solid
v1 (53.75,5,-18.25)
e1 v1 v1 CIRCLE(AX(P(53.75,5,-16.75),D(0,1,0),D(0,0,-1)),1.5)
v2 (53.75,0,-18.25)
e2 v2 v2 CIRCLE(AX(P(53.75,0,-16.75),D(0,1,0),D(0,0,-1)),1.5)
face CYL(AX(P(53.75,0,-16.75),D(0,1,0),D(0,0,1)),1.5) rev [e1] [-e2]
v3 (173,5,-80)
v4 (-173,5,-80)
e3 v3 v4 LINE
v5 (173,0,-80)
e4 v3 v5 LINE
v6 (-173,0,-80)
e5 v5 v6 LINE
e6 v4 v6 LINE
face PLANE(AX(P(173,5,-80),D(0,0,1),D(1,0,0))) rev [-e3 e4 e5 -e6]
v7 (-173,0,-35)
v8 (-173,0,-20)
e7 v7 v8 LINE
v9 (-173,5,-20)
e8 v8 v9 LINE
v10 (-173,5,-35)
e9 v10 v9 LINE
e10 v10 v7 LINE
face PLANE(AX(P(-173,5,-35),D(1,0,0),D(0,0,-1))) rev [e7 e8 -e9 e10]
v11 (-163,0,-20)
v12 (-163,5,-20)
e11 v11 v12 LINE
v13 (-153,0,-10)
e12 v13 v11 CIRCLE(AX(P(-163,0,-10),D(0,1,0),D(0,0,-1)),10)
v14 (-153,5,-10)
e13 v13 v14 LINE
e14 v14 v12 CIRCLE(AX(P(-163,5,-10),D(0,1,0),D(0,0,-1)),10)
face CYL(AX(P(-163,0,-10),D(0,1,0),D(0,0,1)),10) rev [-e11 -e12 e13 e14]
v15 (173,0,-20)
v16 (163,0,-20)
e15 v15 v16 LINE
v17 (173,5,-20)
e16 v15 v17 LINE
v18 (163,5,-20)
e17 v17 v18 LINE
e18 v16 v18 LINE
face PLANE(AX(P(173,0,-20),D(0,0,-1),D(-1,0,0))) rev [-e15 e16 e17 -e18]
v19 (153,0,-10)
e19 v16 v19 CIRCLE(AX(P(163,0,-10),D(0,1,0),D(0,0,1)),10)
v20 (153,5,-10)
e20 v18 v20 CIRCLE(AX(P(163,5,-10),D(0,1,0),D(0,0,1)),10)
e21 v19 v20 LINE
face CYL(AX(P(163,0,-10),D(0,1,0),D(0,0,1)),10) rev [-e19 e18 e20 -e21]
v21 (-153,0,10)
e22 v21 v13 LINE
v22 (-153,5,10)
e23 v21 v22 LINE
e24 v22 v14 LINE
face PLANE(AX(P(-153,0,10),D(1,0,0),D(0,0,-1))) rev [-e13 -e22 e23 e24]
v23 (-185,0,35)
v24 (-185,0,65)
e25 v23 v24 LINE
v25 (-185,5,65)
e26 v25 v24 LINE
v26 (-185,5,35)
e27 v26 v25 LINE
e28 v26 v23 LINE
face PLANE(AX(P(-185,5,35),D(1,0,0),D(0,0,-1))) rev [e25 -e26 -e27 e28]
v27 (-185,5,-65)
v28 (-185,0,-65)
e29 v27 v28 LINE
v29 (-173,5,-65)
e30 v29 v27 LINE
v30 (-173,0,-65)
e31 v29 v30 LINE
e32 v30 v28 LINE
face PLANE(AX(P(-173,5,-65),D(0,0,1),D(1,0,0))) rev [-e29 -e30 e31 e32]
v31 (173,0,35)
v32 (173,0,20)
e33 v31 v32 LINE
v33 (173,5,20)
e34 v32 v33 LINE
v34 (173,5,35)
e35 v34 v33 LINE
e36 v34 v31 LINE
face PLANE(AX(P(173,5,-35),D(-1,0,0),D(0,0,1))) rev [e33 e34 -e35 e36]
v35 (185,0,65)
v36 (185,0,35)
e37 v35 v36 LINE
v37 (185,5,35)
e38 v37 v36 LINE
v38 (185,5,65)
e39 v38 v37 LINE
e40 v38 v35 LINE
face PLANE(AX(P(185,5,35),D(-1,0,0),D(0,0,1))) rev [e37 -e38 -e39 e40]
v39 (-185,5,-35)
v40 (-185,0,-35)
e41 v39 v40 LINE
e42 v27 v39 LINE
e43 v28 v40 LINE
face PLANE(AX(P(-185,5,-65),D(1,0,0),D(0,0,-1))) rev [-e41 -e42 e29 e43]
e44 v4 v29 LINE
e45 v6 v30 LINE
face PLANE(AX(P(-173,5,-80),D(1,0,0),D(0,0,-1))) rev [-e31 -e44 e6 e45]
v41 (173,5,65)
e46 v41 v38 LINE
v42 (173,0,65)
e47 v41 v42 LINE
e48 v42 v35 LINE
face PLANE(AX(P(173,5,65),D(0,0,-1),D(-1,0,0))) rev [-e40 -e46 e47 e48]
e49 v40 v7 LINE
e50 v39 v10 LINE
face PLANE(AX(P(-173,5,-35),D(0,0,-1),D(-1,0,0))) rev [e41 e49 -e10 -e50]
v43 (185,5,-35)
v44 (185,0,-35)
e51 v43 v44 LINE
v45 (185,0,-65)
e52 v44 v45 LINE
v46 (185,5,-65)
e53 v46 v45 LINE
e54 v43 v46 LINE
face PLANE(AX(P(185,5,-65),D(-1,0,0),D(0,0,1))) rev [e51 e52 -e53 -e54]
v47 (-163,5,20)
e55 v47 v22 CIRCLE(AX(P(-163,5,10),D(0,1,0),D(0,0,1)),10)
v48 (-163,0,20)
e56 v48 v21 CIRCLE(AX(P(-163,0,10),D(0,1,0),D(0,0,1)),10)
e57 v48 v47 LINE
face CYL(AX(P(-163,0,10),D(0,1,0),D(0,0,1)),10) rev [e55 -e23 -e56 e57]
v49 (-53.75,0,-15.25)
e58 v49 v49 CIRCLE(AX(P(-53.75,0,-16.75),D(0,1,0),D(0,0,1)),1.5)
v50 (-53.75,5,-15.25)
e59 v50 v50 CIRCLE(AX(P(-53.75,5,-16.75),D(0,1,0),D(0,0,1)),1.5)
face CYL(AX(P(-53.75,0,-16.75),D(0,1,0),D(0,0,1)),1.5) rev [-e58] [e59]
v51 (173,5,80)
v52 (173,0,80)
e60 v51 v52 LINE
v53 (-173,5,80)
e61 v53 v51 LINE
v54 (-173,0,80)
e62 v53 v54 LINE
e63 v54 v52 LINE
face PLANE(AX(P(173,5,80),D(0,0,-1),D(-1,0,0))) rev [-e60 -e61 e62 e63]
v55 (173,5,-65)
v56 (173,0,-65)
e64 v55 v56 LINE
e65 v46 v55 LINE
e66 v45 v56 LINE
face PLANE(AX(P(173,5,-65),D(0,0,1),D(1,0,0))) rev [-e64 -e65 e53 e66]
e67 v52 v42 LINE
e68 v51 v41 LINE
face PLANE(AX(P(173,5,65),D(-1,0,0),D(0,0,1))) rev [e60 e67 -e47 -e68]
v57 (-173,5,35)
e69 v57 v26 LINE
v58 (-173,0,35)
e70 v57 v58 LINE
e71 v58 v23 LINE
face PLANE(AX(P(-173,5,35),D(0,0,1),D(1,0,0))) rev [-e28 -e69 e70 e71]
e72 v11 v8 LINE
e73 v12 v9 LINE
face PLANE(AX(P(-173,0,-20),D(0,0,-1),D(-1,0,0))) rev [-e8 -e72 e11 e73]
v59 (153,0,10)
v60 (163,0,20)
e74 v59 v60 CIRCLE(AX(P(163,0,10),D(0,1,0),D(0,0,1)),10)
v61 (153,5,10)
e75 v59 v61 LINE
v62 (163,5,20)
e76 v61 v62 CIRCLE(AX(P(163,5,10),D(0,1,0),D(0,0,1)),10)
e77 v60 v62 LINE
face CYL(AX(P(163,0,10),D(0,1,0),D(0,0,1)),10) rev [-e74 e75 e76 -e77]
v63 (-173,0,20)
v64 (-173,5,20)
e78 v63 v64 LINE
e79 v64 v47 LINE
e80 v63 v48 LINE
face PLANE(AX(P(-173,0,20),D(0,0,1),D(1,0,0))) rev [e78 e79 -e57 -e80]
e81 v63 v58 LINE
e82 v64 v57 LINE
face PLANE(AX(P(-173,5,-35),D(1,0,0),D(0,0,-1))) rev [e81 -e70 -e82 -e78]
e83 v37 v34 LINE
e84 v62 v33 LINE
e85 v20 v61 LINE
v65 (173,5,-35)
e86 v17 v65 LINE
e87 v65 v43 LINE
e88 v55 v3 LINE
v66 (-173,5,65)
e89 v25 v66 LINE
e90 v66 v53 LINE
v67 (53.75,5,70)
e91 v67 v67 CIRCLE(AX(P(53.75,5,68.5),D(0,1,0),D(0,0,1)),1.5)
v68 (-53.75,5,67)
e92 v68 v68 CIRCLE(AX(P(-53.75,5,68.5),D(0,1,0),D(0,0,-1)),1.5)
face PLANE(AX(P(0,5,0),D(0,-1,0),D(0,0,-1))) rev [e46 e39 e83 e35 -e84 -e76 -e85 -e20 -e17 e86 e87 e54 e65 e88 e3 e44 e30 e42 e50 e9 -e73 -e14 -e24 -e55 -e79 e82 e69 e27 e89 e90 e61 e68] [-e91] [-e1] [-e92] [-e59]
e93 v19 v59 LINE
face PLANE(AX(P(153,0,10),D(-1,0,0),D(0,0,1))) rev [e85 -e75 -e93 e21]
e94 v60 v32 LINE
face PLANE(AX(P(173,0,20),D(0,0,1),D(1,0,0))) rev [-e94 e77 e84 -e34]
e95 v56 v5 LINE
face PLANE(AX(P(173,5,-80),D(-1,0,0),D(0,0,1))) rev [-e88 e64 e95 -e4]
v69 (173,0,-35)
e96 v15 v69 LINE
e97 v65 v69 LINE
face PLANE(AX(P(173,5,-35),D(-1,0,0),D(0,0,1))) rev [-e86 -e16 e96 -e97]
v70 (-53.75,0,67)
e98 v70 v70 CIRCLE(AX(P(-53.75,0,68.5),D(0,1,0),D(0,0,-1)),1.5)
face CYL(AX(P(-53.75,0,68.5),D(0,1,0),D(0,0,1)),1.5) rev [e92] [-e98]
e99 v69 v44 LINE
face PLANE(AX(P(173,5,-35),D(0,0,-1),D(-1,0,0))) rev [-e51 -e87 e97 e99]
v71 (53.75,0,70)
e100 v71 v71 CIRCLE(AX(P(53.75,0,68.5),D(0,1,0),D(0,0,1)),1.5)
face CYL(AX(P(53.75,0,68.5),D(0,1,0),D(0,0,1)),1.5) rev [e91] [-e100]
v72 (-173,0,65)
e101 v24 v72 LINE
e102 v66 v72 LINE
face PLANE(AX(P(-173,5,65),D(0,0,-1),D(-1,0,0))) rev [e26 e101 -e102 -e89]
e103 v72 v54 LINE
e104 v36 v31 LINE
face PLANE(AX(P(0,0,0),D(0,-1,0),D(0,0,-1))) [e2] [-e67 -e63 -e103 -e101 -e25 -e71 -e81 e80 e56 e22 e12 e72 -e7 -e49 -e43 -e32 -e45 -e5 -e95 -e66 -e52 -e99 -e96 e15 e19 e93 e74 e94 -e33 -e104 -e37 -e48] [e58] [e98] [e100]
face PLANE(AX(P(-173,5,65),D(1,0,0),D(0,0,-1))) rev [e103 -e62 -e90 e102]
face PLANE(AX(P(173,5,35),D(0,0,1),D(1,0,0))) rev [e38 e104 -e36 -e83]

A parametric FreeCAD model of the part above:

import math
import FreeCAD as App
import Part
import Sketcher

doc = App.newDocument("Part")
body = doc.addObject("PartDesign::Body", "Body")

sketch1 = body.newObject("Sketcher::SketchObject", "Sketch")
sketch1.AttachmentSupport = (doc.getObject("XZ_Plane"), [""])
sketch1.MapMode = "FlatFace"
sketch1.addGeometry(Part.LineSegment(App.Vector(173, 65, 0), App.Vector(185, 65, 0)), False)
sketch1.addGeometry(Part.LineSegment(App.Vector(185, 65, 0), App.Vector(185, 35, 0)), False)
sketch1.addGeometry(Part.LineSegment(App.Vector(185, 35, 0), App.Vector(173, 35, 0)), False)
sketch1.addGeometry(Part.LineSegment(App.Vector(173, 35, 0), App.Vector(173, -35, 0)), False)
sketch1.addGeometry(Part.LineSegment(App.Vector(173, -35, 0), App.Vector(185, -35, 0)), False)
sketch1.addGeometry(Part.LineSegment(App.Vector(185, -35, 0), App.Vector(185, -65, 0)), False)
sketch1.addGeometry(Part.LineSegment(App.Vector(185, -65, 0), App.Vector(173, -65, 0)), False)
sketch1.addGeometry(Part.LineSegment(App.Vector(173, -65, 0), App.Vector(173, -80, 0)), False)
sketch1.addGeometry(Part.LineSegment(App.Vector(173, -80, 0), App.Vector(-173, -80, 0)), False)
sketch1.addGeometry(Part.LineSegment(App.Vector(-173, -80, 0), App.Vector(-173, -65, 0)), False)
sketch1.addGeometry(Part.LineSegment(App.Vector(-173, -65, 0), App.Vector(-185, -65, 0)), False)
sketch1.addGeometry(Part.LineSegment(App.Vector(-185, -65, 0), App.Vector(-185, -35, 0)), False)
sketch1.addGeometry(Part.LineSegment(App.Vector(-185, -35, 0), App.Vector(-173, -35, 0)), False)
sketch1.addGeometry(Part.LineSegment(App.Vector(-173, -35, 0), App.Vector(-173, 35, 0)), False)
sketch1.addGeometry(Part.LineSegment(App.Vector(-173, 35, 0), App.Vector(-185, 35, 0)), False)
sketch1.addGeometry(Part.LineSegment(App.Vector(-185, 35, 0), App.Vector(-185, 65, 0)), False)
sketch1.addGeometry(Part.LineSegment(App.Vector(-185, 65, 0), App.Vector(-173, 65, 0)), False)
sketch1.addGeometry(Part.LineSegment(App.Vector(-173, 65, 0), App.Vector(-173, 80, 0)), False)
sketch1.addGeometry(Part.LineSegment(App.Vector(-173, 80, 0), App.Vector(173, 80, 0)), False)
sketch1.addGeometry(Part.LineSegment(App.Vector(173, 80, 0), App.Vector(173, 65, 0)), False)
sketch1.addConstraint(Sketcher.Constraint("Coincident", 0, 2, 1, 1))
sketch1.addConstraint(Sketcher.Constraint("Coincident", 1, 2, 2, 1))
sketch1.addConstraint(Sketcher.Constraint("Coincident", 2, 2, 3, 1))
sketch1.addConstraint(Sketcher.Constraint("Coincident", 3, 2, 4, 1))
sketch1.addConstraint(Sketcher.Constraint("Coincident", 4, 2, 5, 1))
sketch1.addConstraint(Sketcher.Constraint("Coincident", 5, 2, 6, 1))
sketch1.addConstraint(Sketcher.Constraint("Coincident", 6, 2, 7, 1))
sketch1.addConstraint(Sketcher.Constraint("Coincident", 7, 2, 8, 1))
sketch1.addConstraint(Sketcher.Constraint("Coincident", 8, 2, 9, 1))
sketch1.addConstraint(Sketcher.Constraint("Coincident", 9, 2, 10, 1))
sketch1.addConstraint(Sketcher.Constraint("Coincident", 10, 2, 11, 1))
sketch1.addConstraint(Sketcher.Constraint("Coincident", 11, 2, 12, 1))
sketch1.addConstraint(Sketcher.Constraint("Coincident", 12, 2, 13, 1))
sketch1.addConstraint(Sketcher.Constraint("Coincident", 13, 2, 14, 1))
sketch1.addConstraint(Sketcher.Constraint("Coincident", 14, 2, 15, 1))
sketch1.addConstraint(Sketcher.Constraint("Coincident", 15, 2, 16, 1))
sketch1.addConstraint(Sketcher.Constraint("Coincident", 16, 2, 17, 1))
sketch1.addConstraint(Sketcher.Constraint("Coincident", 17, 2, 18, 1))
sketch1.addConstraint(Sketcher.Constraint("Coincident", 18, 2, 19, 1))
sketch1.addConstraint(Sketcher.Constraint("Coincident", 19, 2, 0, 1))
sketch1.addConstraint(Sketcher.Constraint("Horizontal", 0))
sketch1.addConstraint(Sketcher.Constraint("Vertical", 1))
sketch1.addConstraint(Sketcher.Constraint("Horizontal", 2))
sketch1.addConstraint(Sketcher.Constraint("Vertical", 3))
sketch1.addConstraint(Sketcher.Constraint("Horizontal", 4))
sketch1.addConstraint(Sketcher.Constraint("Vertical", 5))
sketch1.addConstraint(Sketcher.Constraint("Horizontal", 6))
sketch1.addConstraint(Sketcher.Constraint("Vertical", 7))
sketch1.addConstraint(Sketcher.Constraint("Horizontal", 8))
sketch1.addConstraint(Sketcher.Constraint("Vertical", 9))
sketch1.addConstraint(Sketcher.Constraint("Horizontal", 10))
sketch1.addConstraint(Sketcher.Constraint("Vertical", 11))
sketch1.addConstraint(Sketcher.Constraint("Horizontal", 12))
sketch1.addConstraint(Sketcher.Constraint("Vertical", 13))
sketch1.addConstraint(Sketcher.Constraint("Horizontal", 14))
sketch1.addConstraint(Sketcher.Constraint("Vertical", 15))
sketch1.addConstraint(Sketcher.Constraint("Horizontal", 16))
sketch1.addConstraint(Sketcher.Constraint("Vertical", 17))
sketch1.addConstraint(Sketcher.Constraint("Horizontal", 18))
sketch1.addConstraint(Sketcher.Constraint("Vertical", 19))
sketch1.addConstraint(Sketcher.Constraint("Symmetric", 0, 2, 10, 2, -1, 1))
sketch1.addConstraint(Sketcher.Constraint("Symmetric", 2, 2, 12, 2, -1, 1))
sketch1.addConstraint(Sketcher.Constraint("Symmetric", 4, 2, 14, 2, -1, 1))
sketch1.addConstraint(Sketcher.Constraint("Symmetric", 6, 2, 16, 2, -1, 1))
sketch1.addConstraint(Sketcher.Constraint("Symmetric", 8, 2, 18, 2, -1, 1))
sketch1.addConstraint(Sketcher.Constraint("Symmetric", 6, 2, 9, 2, -2))
sketch1.addConstraint(Sketcher.Constraint("Symmetric", 4, 2, 11, 2, -2))
sketch1.addConstraint(Sketcher.Constraint("Vertical", 3, 2, 6, 2))
sketch1.addConstraint(Sketcher.Constraint("DistanceX", 0, 1, 0, 2, 12.0))
sketch1.addConstraint(Sketcher.Constraint("DistanceX", 8, 2, 8, 1, 346.0))
sketch1.addConstraint(Sketcher.Constraint("DistanceY", 1, 2, 1, 1, 30.0))
sketch1.addConstraint(Sketcher.Constraint("DistanceY", 3, 2, 3, 1, 70.0))
sketch1.addConstraint(Sketcher.Constraint("DistanceY", 7, 2, 7, 1, 15.0))
pad1 = body.newObject("PartDesign::Pad", "Pad")
pad1.Profile = sketch1
pad1.Length = 5
pad1.Reversed = True

sketch2 = body.newObject("Sketcher::SketchObject", "Sketch001")
sketch2.AttachmentSupport = (doc.getObject("XZ_Plane"), [""])
sketch2.MapMode = "FlatFace"
sketch2.AttachmentOffset = App.Placement(App.Vector(0, 0, -5), App.Rotation())
sketch2.addGeometry(Part.Circle(App.Vector(-53.8, -16.8, 0), App.Vector(0, 0, 1), 1.5), False)
sketch2.addGeometry(Part.Circle(App.Vector(53.8, -16.8, 0), App.Vector(0, 0, 1), 1.5), False)
sketch2.addGeometry(Part.Circle(App.Vector(53.8, 68.5, 0), App.Vector(0, 0, 1), 1.5), False)
sketch2.addGeometry(Part.Circle(App.Vector(-53.8, 68.5, 0), App.Vector(0, 0, 1), 1.5), False)
sketch2.addGeometry(Part.LineSegment(App.Vector(-173, 20, 0), App.Vector(-163, 20, 0)), False)
sketch2.addGeometry(Part.ArcOfCircle(Part.Circle(App.Vector(-163, 10, 0), App.Vector(0, 0, 1), 10), math.radians(0), math.radians(90)), False)
sketch2.addGeometry(Part.LineSegment(App.Vector(-153, 10, 0), App.Vector(-153, -10, 0)), False)
sketch2.addGeometry(Part.ArcOfCircle(Part.Circle(App.Vector(-163, -10, 0), App.Vector(0, 0, 1), 10), math.radians(-90), math.radians(0)), False)
sketch2.addGeometry(Part.LineSegment(App.Vector(-163, -20, 0), App.Vector(-173, -20, 0)), False)
sketch2.addGeometry(Part.LineSegment(App.Vector(-173, -20, 0), App.Vector(-173, 20, 0)), False)
sketch2.addGeometry(Part.LineSegment(App.Vector(173, -20, 0), App.Vector(163, -20, 0)), False)
sketch2.addGeometry(Part.ArcOfCircle(Part.Circle(App.Vector(163, -10, 0), App.Vector(0, 0, 1), 10), math.radians(180), math.radians(270)), False)
sketch2.addGeometry(Part.LineSegment(App.Vector(153, -10, 0), App.Vector(153, 10, 0)), False)
sketch2.addGeometry(Part.ArcOfCircle(Part.Circle(App.Vector(163, 10, 0), App.Vector(0, 0, 1), 10), math.radians(90), math.radians(180)), False)
sketch2.addGeometry(Part.LineSegment(App.Vector(163, 20, 0), App.Vector(173, 20, 0)), False)
sketch2.addGeometry(Part.LineSegment(App.Vector(173, 20, 0), App.Vector(173, -20, 0)), False)
sketch2.addConstraint(Sketcher.Constraint("Tangent", 4, 2, 5, 2))
sketch2.addConstraint(Sketcher.Constraint("Tangent", 5, 1, 6, 1))
sketch2.addConstraint(Sketcher.Constraint("Tangent", 6, 2, 7, 2))
sketch2.addConstraint(Sketcher.Constraint("Tangent", 7, 1, 8, 1))
sketch2.addConstraint(Sketcher.Constraint("Coincident", 8, 2, 9, 1))
sketch2.addConstraint(Sketcher.Constraint("Coincident", 9, 2, 4, 1))
sketch2.addConstraint(Sketcher.Constraint("Tangent", 10, 2, 11, 2))
sketch2.addConstraint(Sketcher.Constraint("Tangent", 11, 1, 12, 1))
sketch2.addConstraint(Sketcher.Constraint("Tangent", 12, 2, 13, 2))
sketch2.addConstraint(Sketcher.Constraint("Tangent", 13, 1, 14, 1))
sketch2.addConstraint(Sketcher.Constraint("Coincident", 14, 2, 15, 1))
sketch2.addConstraint(Sketcher.Constraint("Coincident", 15, 2, 10, 1))
sketch2.addConstraint(Sketcher.Constraint("Horizontal", 4))
sketch2.addConstraint(Sketcher.Constraint("Vertical", 6))
sketch2.addConstraint(Sketcher.Constraint("Horizontal", 8))
sketch2.addConstraint(Sketcher.Constraint("Vertical", 9))
sketch2.addConstraint(Sketcher.Constraint("Horizontal", 10))
sketch2.addConstraint(Sketcher.Constraint("Vertical", 12))
sketch2.addConstraint(Sketcher.Constraint("Horizontal", 14))
sketch2.addConstraint(Sketcher.Constraint("Vertical", 15))
sketch2.addConstraint(Sketcher.Constraint("Equal", 0, 1))
sketch2.addConstraint(Sketcher.Constraint("Equal", 1, 2))
sketch2.addConstraint(Sketcher.Constraint("Equal", 2, 3))
sketch2.addConstraint(Sketcher.Constraint("Equal", 5, 7))
sketch2.addConstraint(Sketcher.Constraint("Equal", 7, 11))
sketch2.addConstraint(Sketcher.Constraint("Equal", 11, 13))
sketch2.addConstraint(Sketcher.Constraint("Symmetric", 5, 3, 11, 3, -1, 1))
sketch2.addConstraint(Sketcher.Constraint("Symmetric", 8, 2, 14, 2, -1, 1))
sketch2.addConstraint(Sketcher.Constraint("Symmetric", 0, 3, 1, 3, -2))
sketch2.addConstraint(Sketcher.Constraint("Symmetric", 2, 3, 3, 3, -2))
sketch2.addConstraint(Sketcher.Constraint("Horizontal", 7, 3, 11, 3))
sketch2.addConstraint(Sketcher.Constraint("Vertical", 1, 3, 2, 3))
sketch2.addConstraint(Sketcher.Constraint("Diameter", 0, 3.0))
sketch2.addConstraint(Sketcher.Constraint("Radius", 5, 10.0))
sketch2.addConstraint(Sketcher.Constraint("DistanceX", 4, 1, 4, 2, 10.0))
sketch2.addConstraint(Sketcher.Constraint("DistanceY", 6, 2, 6, 1, 20.0))
sketch2.addConstraint(Sketcher.Constraint("DistanceX", 5, 3, -1, 1, 163.0))
sketch2.addConstraint(Sketcher.Constraint("DistanceY", -1, 1, 2, 3, 68.5))
sketch2.addConstraint(Sketcher.Constraint("DistanceX", 0, 3, 1, 3, 107.5))
sketch2.addConstraint(Sketcher.Constraint("DistanceY", 0, 3, -1, 1, 16.75))
pocket1 = body.newObject("PartDesign::Pocket", "Pocket")
pocket1.Profile = sketch2
pocket1.Type = "ThroughAll"
pocket1.Reversed = True

doc.recompute()
